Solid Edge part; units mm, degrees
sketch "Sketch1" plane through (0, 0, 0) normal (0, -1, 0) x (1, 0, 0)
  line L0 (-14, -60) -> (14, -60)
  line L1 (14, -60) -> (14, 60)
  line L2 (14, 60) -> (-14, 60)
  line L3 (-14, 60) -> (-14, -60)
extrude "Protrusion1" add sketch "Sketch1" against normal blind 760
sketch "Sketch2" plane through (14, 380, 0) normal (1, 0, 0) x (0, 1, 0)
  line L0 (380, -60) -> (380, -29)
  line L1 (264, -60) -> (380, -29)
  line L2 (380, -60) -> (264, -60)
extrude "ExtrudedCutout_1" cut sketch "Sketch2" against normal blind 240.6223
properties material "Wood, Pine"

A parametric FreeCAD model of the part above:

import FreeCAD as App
import Part
import Sketcher
from FreeCAD import Vector


def add_polygon(sketch, points):
    """Adds a closed chain of lines whose ends are joined by coincident constraints."""
    first, n = sketch.GeometryCount, len(points)
    for a, b in zip(points, points[1:] + points[:1]):
        sketch.addGeometry(Part.LineSegment(App.Vector(*a, 0), App.Vector(*b, 0)), False)
    for i in range(n):
        sketch.addConstraint(Sketcher.Constraint("Coincident", first + i, 2, first + (i + 1) % n, 1))

doc = App.newDocument("Part")
body = doc.addObject("PartDesign::Body", "Body")

sketch1 = body.newObject("Sketcher::SketchObject", "Sketch")
sketch1.AttachmentSupport = (doc.getObject("XZ_Plane"), [""])
sketch1.MapMode = "FlatFace"
add_polygon(sketch1, [(-14, 60), (-14, -60), (14, -60), (14, 60)])
sketch1.addConstraint([
    Sketcher.Constraint("Vertical", 0),
    Sketcher.Constraint("Horizontal", 1),
    Sketcher.Constraint("Vertical", 2),
    Sketcher.Constraint("Horizontal", 3),
    Sketcher.Constraint("Symmetric", 0, 2, 2, 2, -1, 1),
    Sketcher.Constraint("DistanceX", 1, 1, 1, 2, 28.0),
    Sketcher.Constraint("DistanceY", 0, 2, 0, 1, 120.0),
])
pad1 = body.newObject("PartDesign::Pad", "Pad")
pad1.Profile = sketch1
pad1.Length = 760
pad1.Reversed = True

sketch2 = body.newObject("Sketcher::SketchObject", "Sketch001")
sketch2.AttachmentSupport = (doc.getObject("YZ_Plane"), [""])
sketch2.MapMode = "FlatFace"
sketch2.AttachmentOffset = App.Placement(Vector(0, 0, 14), App.Rotation())
add_polygon(sketch2, [(644, -60), (760, -60), (760, -29)])
sketch2.addConstraint([
    Sketcher.Constraint("Horizontal", 0),
    Sketcher.Constraint("Vertical", 1),
    Sketcher.Constraint("DistanceX", 0, 1, 0, 2, 116.0),
    Sketcher.Constraint("DistanceY", 1, 1, 1, 2, 31.0),
    Sketcher.Constraint("DistanceX", -1, 1, 0, 2, 760.0),
    Sketcher.Constraint("DistanceY", 0, 2, -1, 1, 60.0),
])
pocket1 = body.newObject("PartDesign::Pocket", "Pocket")
pocket1.Profile = sketch2
pocket1.Length = 240.6223

doc.recompute()
